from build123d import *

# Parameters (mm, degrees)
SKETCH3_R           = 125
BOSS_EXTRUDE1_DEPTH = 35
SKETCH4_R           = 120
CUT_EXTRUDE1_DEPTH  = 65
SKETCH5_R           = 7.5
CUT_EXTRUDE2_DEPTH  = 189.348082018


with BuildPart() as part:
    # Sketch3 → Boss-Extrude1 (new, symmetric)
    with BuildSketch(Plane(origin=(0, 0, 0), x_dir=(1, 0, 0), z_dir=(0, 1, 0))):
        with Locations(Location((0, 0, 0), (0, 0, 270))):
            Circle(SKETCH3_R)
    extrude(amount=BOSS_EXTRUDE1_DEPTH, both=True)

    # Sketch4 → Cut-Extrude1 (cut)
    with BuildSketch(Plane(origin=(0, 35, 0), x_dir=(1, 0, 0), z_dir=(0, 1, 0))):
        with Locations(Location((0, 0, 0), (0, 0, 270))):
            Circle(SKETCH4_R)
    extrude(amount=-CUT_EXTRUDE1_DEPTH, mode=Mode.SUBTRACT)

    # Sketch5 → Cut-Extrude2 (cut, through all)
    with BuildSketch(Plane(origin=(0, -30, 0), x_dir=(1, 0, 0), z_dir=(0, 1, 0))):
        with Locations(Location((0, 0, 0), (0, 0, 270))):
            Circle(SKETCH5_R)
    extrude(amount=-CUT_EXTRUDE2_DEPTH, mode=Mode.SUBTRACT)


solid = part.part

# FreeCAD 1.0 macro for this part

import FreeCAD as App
import Part
import Sketcher

doc = App.newDocument("Part")
body = doc.addObject("PartDesign::Body", "Body")

# Sketch on XZ plane
sketch1 = doc.addObject("Sketcher::SketchObject", "Sketch")
body.addObject(sketch1)
sketch1.AttachmentSupport = (doc.XZ_Plane, [""])
sketch1.MapMode = "FlatFace"
sketch1.addGeometry(Part.Circle(App.Vector(0, 0, 0), App.Vector(0, 0, 1), 125), False)
sketch1.addConstraint(Sketcher.Constraint("Coincident", 0, 3, -1, 1))
sketch1.addConstraint(Sketcher.Constraint("Diameter", 0, 250.0))
pad1 = doc.addObject("PartDesign::Pad", "Pad")
body.addObject(pad1)
pad1.Profile = sketch1
pad1.Length = 70
pad1.Midplane = True

# Sketch on XZ plane
sketch2 = doc.addObject("Sketcher::SketchObject", "Sketch001")
body.addObject(sketch2)
sketch2.AttachmentSupport = (doc.XZ_Plane, [""])
sketch2.MapMode = "FlatFace"
sketch2.AttachmentOffset = App.Placement(App.Vector(0, 0, -35), App.Rotation())
sketch2.addGeometry(Part.Circle(App.Vector(0, 0, 0), App.Vector(0, 0, 1), 120), False)
sketch2.addConstraint(Sketcher.Constraint("Coincident", 0, 3, -1, 1))
sketch2.addConstraint(Sketcher.Constraint("Diameter", 0, 240.0))
pocket1 = doc.addObject("PartDesign::Pocket", "Pocket")
body.addObject(pocket1)
pocket1.Profile = sketch2
pocket1.Length = 65
pocket1.Reversed = True

# Sketch on XZ plane
sketch3 = doc.addObject("Sketcher::SketchObject", "Sketch002")
body.addObject(sketch3)
sketch3.AttachmentSupport = (doc.XZ_Plane, [""])
sketch3.MapMode = "FlatFace"
sketch3.AttachmentOffset = App.Placement(App.Vector(0, 0, 30), App.Rotation())
sketch3.addGeometry(Part.Circle(App.Vector(0, 0, 0), App.Vector(0, 0, 1), 8), False)
sketch3.addConstraint(Sketcher.Constraint("Coincident", 0, 3, -1, 1))
sketch3.addConstraint(Sketcher.Constraint("Diameter", 0, 15.0))
pocket2 = doc.addObject("PartDesign::Pocket", "Pocket001")
body.addObject(pocket2)
pocket2.Profile = sketch3
pocket2.Type = "ThroughAll"
pocket2.Reversed = True

doc.recompute()
